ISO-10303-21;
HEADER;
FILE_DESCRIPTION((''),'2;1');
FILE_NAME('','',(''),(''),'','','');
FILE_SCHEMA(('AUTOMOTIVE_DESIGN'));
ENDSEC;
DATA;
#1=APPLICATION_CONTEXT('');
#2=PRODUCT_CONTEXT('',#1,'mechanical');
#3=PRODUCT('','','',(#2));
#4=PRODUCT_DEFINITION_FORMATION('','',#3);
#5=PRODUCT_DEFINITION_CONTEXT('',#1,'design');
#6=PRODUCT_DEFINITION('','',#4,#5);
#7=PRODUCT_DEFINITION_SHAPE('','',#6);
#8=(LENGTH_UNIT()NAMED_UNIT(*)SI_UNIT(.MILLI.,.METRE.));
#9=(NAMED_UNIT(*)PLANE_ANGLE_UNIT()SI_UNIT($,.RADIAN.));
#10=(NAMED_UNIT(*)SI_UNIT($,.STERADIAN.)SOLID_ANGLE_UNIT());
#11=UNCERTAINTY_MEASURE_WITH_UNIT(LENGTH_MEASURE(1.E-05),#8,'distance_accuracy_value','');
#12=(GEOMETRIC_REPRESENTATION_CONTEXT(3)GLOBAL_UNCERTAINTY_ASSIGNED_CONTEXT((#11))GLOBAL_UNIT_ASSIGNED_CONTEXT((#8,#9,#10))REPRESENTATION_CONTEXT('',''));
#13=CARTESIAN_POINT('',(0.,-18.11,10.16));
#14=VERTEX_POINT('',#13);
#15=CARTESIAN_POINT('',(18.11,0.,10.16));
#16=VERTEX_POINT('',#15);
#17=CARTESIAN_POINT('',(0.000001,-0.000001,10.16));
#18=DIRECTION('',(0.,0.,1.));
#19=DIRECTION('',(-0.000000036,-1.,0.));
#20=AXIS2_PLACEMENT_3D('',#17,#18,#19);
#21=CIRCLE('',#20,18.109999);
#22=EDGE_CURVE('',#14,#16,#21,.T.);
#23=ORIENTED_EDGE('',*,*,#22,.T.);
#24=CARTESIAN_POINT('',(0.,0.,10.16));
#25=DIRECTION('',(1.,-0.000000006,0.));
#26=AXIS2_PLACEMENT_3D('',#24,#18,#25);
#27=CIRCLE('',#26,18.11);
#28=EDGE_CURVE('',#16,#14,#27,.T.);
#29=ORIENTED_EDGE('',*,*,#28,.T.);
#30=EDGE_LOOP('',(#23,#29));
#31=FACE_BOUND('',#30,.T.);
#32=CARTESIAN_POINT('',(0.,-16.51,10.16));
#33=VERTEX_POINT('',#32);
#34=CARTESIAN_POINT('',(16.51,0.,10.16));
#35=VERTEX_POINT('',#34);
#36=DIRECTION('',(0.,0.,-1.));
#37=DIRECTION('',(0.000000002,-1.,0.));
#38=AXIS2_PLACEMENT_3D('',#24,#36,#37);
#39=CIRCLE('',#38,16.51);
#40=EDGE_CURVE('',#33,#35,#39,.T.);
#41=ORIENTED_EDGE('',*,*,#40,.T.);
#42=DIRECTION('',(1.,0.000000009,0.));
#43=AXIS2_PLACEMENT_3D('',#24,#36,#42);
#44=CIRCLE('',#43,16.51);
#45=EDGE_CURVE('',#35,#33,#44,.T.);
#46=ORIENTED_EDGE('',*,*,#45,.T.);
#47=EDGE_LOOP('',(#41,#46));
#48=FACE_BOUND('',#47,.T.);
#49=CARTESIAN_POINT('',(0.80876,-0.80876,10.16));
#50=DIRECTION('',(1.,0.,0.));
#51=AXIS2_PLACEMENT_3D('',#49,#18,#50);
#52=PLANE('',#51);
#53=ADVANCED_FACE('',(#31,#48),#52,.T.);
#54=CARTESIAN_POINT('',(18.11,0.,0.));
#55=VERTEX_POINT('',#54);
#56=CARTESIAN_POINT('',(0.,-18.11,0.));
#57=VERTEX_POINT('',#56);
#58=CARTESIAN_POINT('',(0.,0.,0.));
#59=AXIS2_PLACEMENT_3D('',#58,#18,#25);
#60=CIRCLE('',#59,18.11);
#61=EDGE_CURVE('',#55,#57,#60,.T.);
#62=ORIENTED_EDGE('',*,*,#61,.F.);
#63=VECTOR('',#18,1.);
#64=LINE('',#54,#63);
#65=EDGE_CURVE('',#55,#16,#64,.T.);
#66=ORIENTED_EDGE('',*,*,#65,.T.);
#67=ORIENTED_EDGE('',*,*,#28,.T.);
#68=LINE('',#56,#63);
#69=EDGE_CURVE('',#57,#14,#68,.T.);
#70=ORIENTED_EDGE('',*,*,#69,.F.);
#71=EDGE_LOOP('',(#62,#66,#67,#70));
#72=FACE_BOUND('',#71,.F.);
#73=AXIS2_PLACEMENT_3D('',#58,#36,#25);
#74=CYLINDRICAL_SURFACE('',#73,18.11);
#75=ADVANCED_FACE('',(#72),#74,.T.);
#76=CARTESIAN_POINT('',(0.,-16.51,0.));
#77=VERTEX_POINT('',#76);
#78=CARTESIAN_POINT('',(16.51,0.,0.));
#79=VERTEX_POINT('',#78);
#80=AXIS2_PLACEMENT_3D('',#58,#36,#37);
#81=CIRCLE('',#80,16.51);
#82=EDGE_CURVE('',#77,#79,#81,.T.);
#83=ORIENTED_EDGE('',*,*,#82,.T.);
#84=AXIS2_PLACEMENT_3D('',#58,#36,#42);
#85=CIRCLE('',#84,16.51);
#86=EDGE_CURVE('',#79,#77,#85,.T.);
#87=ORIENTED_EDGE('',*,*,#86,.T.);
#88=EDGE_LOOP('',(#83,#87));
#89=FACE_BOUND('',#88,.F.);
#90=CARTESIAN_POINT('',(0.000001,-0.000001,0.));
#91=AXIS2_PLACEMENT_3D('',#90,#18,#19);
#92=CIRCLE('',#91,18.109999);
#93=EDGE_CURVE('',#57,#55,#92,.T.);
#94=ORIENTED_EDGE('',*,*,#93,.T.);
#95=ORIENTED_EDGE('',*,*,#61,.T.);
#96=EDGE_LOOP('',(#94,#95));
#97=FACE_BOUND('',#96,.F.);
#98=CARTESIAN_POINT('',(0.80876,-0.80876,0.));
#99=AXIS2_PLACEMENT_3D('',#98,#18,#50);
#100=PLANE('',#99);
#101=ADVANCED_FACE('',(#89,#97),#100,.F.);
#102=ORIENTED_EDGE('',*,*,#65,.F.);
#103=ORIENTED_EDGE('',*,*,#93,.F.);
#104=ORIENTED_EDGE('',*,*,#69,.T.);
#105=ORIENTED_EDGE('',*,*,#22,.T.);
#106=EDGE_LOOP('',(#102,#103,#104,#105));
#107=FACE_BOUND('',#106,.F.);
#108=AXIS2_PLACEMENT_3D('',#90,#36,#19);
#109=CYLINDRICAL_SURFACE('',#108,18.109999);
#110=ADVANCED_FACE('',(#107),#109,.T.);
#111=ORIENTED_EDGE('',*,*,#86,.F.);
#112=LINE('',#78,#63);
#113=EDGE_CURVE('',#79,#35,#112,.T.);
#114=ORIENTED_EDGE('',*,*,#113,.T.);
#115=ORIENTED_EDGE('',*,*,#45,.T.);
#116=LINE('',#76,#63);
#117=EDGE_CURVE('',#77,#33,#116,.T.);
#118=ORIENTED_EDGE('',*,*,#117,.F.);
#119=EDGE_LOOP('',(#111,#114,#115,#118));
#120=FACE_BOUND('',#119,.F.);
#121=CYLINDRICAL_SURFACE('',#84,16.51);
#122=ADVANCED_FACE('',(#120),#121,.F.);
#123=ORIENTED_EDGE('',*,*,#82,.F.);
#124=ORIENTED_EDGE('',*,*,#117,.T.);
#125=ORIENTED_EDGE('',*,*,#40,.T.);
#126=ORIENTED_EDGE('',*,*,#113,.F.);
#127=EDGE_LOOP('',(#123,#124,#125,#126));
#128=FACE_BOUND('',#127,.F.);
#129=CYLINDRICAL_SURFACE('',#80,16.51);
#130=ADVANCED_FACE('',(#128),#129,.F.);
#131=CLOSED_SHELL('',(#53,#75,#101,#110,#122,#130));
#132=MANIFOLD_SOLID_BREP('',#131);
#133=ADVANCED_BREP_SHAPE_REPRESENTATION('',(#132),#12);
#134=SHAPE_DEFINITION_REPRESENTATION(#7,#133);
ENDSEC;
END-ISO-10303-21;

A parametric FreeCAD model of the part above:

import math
import FreeCAD as App
import Part
import Sketcher
Q = App.Units.Quantity

doc = App.newDocument("Part")
body = doc.addObject("PartDesign::Body", "Body")

sketch1 = body.newObject("Sketcher::SketchObject", "Sketch")
sketch1.AttachmentSupport = (doc.getObject("XY_Plane"), [""])
sketch1.MapMode = "FlatFace"
sketch1.addGeometry([
    Part.ArcOfCircle(Part.Circle(App.Vector(0, 0, 0), App.Vector(0, 0, 1), 18.11), math.radians(0), math.radians(270)),
    Part.ArcOfCircle(Part.Circle(App.Vector(0.000001, -0.000001, 0), App.Vector(0, 0, 1), 18.109999), math.radians(-90.000002), math.radians(0.000002)),
    Part.ArcOfCircle(Part.Circle(App.Vector(0, 0, 0), App.Vector(0, 0, 1), 16.51), math.radians(-90.000001), math.radians(0.000001)),
    Part.ArcOfCircle(Part.Circle(App.Vector(0, 0, 0), App.Vector(0, 0, 1), 16.51), math.radians(0), math.radians(270)),
], False)
sketch1.addConstraint([
    Sketcher.Constraint("Tangent", 0, 1, 1, 2),
    Sketcher.Constraint("Coincident", 1, 1, 0, 2),
    Sketcher.Constraint("Tangent", 2, 1, 3, 2),
    Sketcher.Constraint("Coincident", 3, 1, 2, 2),
    Sketcher.Constraint("Coincident", 0, 3, -1, 1),
    Sketcher.Constraint("Coincident", 2, 3, -1, 1),
    Sketcher.Constraint("PointOnObject", 0, 1, -1),
    Sketcher.Constraint("PointOnObject", 1, 1, -2),
    Sketcher.Constraint("PointOnObject", 2, 1, -2),
    Sketcher.Constraint("PointOnObject", 3, 1, -1),
    Sketcher.Constraint("Radius", 2, Q("0.65 in")),
    Sketcher.Constraint("Radius", 0, Q("18.11 mm")),
])
pad1 = body.newObject("PartDesign::Pad", "Pad")
pad1.Profile = sketch1
pad1.Length = Q("0.4 in")

doc.recompute()
